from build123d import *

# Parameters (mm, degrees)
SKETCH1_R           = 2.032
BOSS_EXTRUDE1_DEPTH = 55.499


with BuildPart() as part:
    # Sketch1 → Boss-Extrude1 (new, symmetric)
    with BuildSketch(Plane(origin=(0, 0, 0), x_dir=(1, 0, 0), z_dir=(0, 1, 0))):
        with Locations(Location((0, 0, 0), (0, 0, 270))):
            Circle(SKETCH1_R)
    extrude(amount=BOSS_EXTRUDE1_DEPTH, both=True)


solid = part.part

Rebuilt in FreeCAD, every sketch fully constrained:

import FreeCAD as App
import Part
import Sketcher

V = App.Vector
Q = App.Units.Quantity

doc = App.newDocument("Part")
body = doc.addObject("PartDesign::Body", "Body")

# Sketch on XZ plane
sketch1 = body.newObject("Sketcher::SketchObject", "Sketch")
sketch1.AttachmentSupport = (doc.getObject("XZ_Plane"), [""])
sketch1.MapMode = "FlatFace"
sketch1.addGeometry(Part.Circle(V(0, 0, 0), V(0, 0, 1), 2), False)
sketch1.addConstraint([
    Sketcher.Constraint("Coincident", 0, 3, -1, 1),
    Sketcher.Constraint("Diameter", 0, Q("0.16 in")),
])
pad1 = body.newObject("PartDesign::Pad", "Pad")
pad1.Profile = sketch1
pad1.Length = Q("4.37 in")
pad1.Midplane = True

doc.recompute()
